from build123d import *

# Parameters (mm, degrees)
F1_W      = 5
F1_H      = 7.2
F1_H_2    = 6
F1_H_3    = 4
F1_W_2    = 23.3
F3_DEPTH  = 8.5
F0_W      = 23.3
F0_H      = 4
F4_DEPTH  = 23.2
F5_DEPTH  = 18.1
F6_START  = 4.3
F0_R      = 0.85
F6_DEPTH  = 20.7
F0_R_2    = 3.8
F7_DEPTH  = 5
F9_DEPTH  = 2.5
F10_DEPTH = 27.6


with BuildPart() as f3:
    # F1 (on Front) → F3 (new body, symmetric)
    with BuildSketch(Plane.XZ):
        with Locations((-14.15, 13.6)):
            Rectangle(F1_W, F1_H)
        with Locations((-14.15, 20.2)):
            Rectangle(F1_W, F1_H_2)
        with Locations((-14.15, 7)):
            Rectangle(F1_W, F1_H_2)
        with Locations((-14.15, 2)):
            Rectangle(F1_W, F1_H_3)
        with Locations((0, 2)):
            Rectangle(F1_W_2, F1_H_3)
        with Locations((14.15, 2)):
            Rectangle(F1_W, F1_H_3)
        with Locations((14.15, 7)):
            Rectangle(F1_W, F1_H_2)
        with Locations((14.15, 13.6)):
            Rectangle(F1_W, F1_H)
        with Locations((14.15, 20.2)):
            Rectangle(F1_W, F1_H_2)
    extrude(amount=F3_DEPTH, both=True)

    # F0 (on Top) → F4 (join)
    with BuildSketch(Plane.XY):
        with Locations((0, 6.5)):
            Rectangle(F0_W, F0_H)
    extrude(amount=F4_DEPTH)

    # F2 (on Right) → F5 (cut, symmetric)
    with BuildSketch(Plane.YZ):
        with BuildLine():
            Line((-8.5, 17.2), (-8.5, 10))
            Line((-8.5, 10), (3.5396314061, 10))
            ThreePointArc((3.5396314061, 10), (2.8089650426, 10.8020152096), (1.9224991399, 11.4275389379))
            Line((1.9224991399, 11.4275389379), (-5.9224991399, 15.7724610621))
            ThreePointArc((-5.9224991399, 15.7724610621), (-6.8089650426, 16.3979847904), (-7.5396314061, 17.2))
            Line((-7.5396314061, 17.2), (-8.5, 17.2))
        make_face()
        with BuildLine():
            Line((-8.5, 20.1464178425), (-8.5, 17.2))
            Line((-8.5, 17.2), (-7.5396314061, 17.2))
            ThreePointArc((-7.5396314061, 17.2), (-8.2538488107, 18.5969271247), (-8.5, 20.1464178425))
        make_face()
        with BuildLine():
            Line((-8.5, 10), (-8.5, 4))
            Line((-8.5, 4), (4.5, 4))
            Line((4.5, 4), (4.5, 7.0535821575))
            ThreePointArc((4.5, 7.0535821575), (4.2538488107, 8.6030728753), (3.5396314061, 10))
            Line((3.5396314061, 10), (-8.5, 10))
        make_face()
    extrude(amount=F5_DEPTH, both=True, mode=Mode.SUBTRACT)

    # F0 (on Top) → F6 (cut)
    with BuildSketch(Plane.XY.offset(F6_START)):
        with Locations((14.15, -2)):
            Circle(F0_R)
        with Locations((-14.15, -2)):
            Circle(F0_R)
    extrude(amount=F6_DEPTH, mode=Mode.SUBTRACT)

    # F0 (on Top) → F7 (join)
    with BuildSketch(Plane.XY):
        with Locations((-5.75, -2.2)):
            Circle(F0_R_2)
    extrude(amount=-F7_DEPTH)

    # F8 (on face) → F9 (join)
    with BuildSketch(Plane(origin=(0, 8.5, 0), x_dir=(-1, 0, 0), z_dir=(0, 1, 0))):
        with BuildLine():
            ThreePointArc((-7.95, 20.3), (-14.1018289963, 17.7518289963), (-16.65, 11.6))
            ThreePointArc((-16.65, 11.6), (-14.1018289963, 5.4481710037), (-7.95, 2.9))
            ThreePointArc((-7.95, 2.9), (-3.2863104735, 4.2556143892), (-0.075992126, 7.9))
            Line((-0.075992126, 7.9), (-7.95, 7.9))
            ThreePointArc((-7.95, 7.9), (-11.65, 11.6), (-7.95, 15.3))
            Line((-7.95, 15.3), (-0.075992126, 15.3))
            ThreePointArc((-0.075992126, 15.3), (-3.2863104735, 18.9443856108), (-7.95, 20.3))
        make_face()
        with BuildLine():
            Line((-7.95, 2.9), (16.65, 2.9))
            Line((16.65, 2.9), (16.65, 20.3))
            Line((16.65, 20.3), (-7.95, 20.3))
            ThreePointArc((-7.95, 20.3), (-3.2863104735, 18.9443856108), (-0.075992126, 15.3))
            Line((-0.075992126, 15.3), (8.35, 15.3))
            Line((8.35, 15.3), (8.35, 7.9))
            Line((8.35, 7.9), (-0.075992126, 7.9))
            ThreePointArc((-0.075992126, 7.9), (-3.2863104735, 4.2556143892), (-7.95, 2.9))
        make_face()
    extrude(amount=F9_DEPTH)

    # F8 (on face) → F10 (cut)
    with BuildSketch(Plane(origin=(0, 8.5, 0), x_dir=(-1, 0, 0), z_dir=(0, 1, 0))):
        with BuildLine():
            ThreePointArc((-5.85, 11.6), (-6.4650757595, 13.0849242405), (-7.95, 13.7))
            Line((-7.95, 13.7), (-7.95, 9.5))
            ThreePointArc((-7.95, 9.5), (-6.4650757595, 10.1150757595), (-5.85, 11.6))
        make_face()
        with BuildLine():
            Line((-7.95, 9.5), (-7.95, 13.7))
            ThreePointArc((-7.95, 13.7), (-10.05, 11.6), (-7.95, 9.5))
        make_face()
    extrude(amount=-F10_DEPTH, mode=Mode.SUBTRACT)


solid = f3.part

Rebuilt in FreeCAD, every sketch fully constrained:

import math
import FreeCAD as App
import Part
import Sketcher

V = App.Vector
Q = App.Units.Quantity


def add_polygon(sketch, points):
    """Adds a closed chain of lines whose ends are joined by coincident constraints."""
    first, n = sketch.GeometryCount, len(points)
    for a, b in zip(points, points[1:] + points[:1]):
        sketch.addGeometry(Part.LineSegment(App.Vector(*a, 0), App.Vector(*b, 0)), False)
    for i in range(n):
        sketch.addConstraint(Sketcher.Constraint("Coincident", first + i, 2, first + (i + 1) % n, 1))

doc = App.newDocument("Part")
body = doc.addObject("PartDesign::Body", "Body")

sketch1 = body.newObject("Sketcher::SketchObject", "Sketch")
sketch1.AttachmentSupport = (doc.getObject("XZ_Plane"), [""])
sketch1.MapMode = "FlatFace"
add_polygon(sketch1, [(-11.65, 23.2), (-16.65, 23.2), (-16.65, 0), (16.65, 0), (16.65, 23.2), (11.65, 23.2), (11.65, 4), (-11.65, 4)])
sketch1.addConstraint([
    Sketcher.Constraint("Horizontal", 0),
    Sketcher.Constraint("Vertical", 1),
    Sketcher.Constraint("Horizontal", 2),
    Sketcher.Constraint("Vertical", 3),
    Sketcher.Constraint("Horizontal", 4),
    Sketcher.Constraint("Vertical", 5),
    Sketcher.Constraint("Horizontal", 6),
    Sketcher.Constraint("Vertical", 7),
    Sketcher.Constraint("Symmetric", 1, 2, 2, 2, -1, 1),
    Sketcher.Constraint("Symmetric", 4, 2, 7, 2, -2),
    Sketcher.Constraint("DistanceX", 0, 2, 0, 1, Q("5 mm")),
    Sketcher.Constraint("DistanceX", 2, 1, 2, 2, Q("33.3 mm")),
    Sketcher.Constraint("DistanceY", 1, 2, 1, 1, Q("23.2 mm")),
    Sketcher.Constraint("DistanceY", 5, 2, 5, 1, Q("19.2 mm")),
])
pad1 = body.newObject("PartDesign::Pad", "Pad")
pad1.Profile = sketch1
pad1.Length = 17
pad1.Midplane = True

sketch2 = body.newObject("Sketcher::SketchObject", "Sketch001")
sketch2.AttachmentSupport = (doc.getObject("XY_Plane"), [""])
sketch2.MapMode = "FlatFace"
add_polygon(sketch2, [(-11.65, 8.5), (-11.65, 4.5), (11.65, 4.5), (11.65, 8.5)])
sketch2.addConstraint([
    Sketcher.Constraint("Vertical", 0),
    Sketcher.Constraint("Horizontal", 1),
    Sketcher.Constraint("Vertical", 2),
    Sketcher.Constraint("Horizontal", 3),
    Sketcher.Constraint("DistanceY", 0, 2, 0, 1, Q("4 mm")),
    Sketcher.Constraint("DistanceX", 1, 1, 1, 2, Q("23.3 mm")),
    Sketcher.Constraint("DistanceY", -1, 1, 0, 2, Q("4.5 mm")),
    Sketcher.Constraint("DistanceX", 0, 2, -1, 1, Q("11.65 mm")),
])
pad2 = body.newObject("PartDesign::Pad", "Pad001")
pad2.Profile = sketch2
pad2.Length = 23.2

sketch3 = body.newObject("Sketcher::SketchObject", "Sketch002")
sketch3.AttachmentSupport = (doc.getObject("YZ_Plane"), [""])
sketch3.MapMode = "FlatFace"
sketch3.addGeometry([
    Part.ArcOfCircle(Part.Circle(V(-0.5, 7.053582, 0), V(0, 0, 1), 5), math.radians(36.106185), math.radians(61.020292)),
    Part.LineSegment(V(1.922499, 11.427539, 0), V(-5.922499, 15.772461, 0)),
    Part.ArcOfCircle(Part.Circle(V(-3.5, 20.146418, 0), V(0, 0, 1), 5), math.radians(-143.893815), math.radians(-118.979708)),
    Part.ArcOfCircle(Part.Circle(V(-3.5, 20.146418, 0), V(0, 0, 1), 5), math.radians(180), math.radians(216.106185)),
    Part.LineSegment(V(-8.5, 20.146418, 0), V(-8.5, 4, 0)),
    Part.LineSegment(V(-8.5, 4, 0), V(4.5, 4, 0)),
    Part.LineSegment(V(4.5, 4, 0), V(4.5, 7.053582, 0)),
    Part.ArcOfCircle(Part.Circle(V(-0.5, 7.053582, 0), V(0, 0, 1), 5), math.radians(0), math.radians(36.106185)),
], False)
sketch3.addConstraint([
    Sketcher.Constraint("Tangent", 0, 2, 1, 1),
    Sketcher.Constraint("Tangent", 1, 2, 2, 2),
    Sketcher.Constraint("Tangent", 2, 1, 3, 2),
    Sketcher.Constraint("Tangent", 3, 1, 4, 1),
    Sketcher.Constraint("Coincident", 4, 2, 5, 1),
    Sketcher.Constraint("Coincident", 5, 2, 6, 1),
    Sketcher.Constraint("Tangent", 6, 2, 7, 1),
    Sketcher.Constraint("Tangent", 7, 2, 0, 1),
    Sketcher.Constraint("Vertical", 4),
    Sketcher.Constraint("Horizontal", 5),
    Sketcher.Constraint("Vertical", 6),
    Sketcher.Constraint("Equal", 0, 2),
    Sketcher.Constraint("Equal", 2, 3),
    Sketcher.Constraint("Equal", 3, 7),
    Sketcher.Constraint("Radius", 0, Q("5 mm")),
    Sketcher.Constraint("DistanceX", 5, 1, 5, 2, Q("13 mm")),
    Sketcher.Constraint("DistanceY", -1, 1, 4, 2, Q("4 mm")),
    Sketcher.Constraint("DistanceY", -1, 1, 7, 2, Q("10 mm")),
    Sketcher.Constraint("DistanceX", 0, 3, -1, 1, Q("0.5 mm")),
    Sketcher.Constraint("DistanceY", -1, 1, 2, 1, Q("17.2 mm")),
    Sketcher.Constraint("DistanceX", 1, 2, 0, 2, Q("7.844998 mm")),
    Sketcher.Constraint("DistanceY", 4, 2, 4, 1, Q("16.146418 mm")),
])
pocket1 = body.newObject("PartDesign::Pocket", "Pocket")
pocket1.Profile = sketch3
pocket1.Length = 36.2
pocket1.Midplane = True

sketch4 = body.newObject("Sketcher::SketchObject", "Sketch003")
sketch4.AttachmentSupport = (doc.getObject("XY_Plane"), [""])
sketch4.MapMode = "FlatFace"
sketch4.AttachmentOffset = App.Placement(V(0, 0, 4.3), App.Rotation())
sketch4.addGeometry([
    Part.Circle(V(14.15, -2, 0), V(0, 0, 1), 0.85),
    Part.Circle(V(-14.15, -2, 0), V(0, 0, 1), 0.85),
], False)
sketch4.addConstraint([
    Sketcher.Constraint("Equal", 0, 1),
    Sketcher.Constraint("Symmetric", 0, 3, 1, 3, -2),
    Sketcher.Constraint("Diameter", 0, Q("1.7 mm")),
    Sketcher.Constraint("DistanceY", 0, 3, -1, 1, Q("2 mm")),
    Sketcher.Constraint("DistanceX", 1, 3, 0, 3, Q("28.3 mm")),
])
pocket2 = body.newObject("PartDesign::Pocket", "Pocket001")
pocket2.Profile = sketch4
pocket2.Length = 20.7
pocket2.Reversed = True

sketch5 = body.newObject("Sketcher::SketchObject", "Sketch004")
sketch5.AttachmentSupport = (doc.getObject("XY_Plane"), [""])
sketch5.MapMode = "FlatFace"
sketch5.addGeometry(Part.Circle(V(-5.75, -2.2, 0), V(0, 0, 1), 3.8), False)
sketch5.addConstraint([
    Sketcher.Constraint("Diameter", 0, Q("7.6 mm")),
    Sketcher.Constraint("DistanceY", 0, 3, -1, 1, Q("2.2 mm")),
    Sketcher.Constraint("DistanceX", 0, 3, -1, 1, Q("5.75 mm")),
])
pad3 = body.newObject("PartDesign::Pad", "Pad002")
pad3.Profile = sketch5
pad3.Length = 5
pad3.Reversed = True

sketch6 = body.newObject("Sketcher::SketchObject", "Sketch005")
sketch6.AttachmentSupport = (doc.getObject("XZ_Plane"), [""])
sketch6.MapMode = "FlatFace"
sketch6.AttachmentOffset = App.Placement(V(0, 0, -8.5), App.Rotation())
sketch6.addGeometry([
    Part.ArcOfCircle(Part.Circle(V(7.95, 11.6, 0), V(0, 0, 1), 8.7), math.radians(0), math.radians(90)),
    Part.ArcOfCircle(Part.Circle(V(7.95, 11.6, 0), V(0, 0, 1), 8.7), math.radians(-90), math.radians(0)),
    Part.LineSegment(V(7.95, 2.9, 0), V(-16.65, 2.9, 0)),
    Part.LineSegment(V(-16.65, 2.9, 0), V(-16.65, 20.3, 0)),
    Part.LineSegment(V(-16.65, 20.3, 0), V(7.95, 20.3, 0)),
    Part.ArcOfCircle(Part.Circle(V(7.95, 11.6, 0), V(0, 0, 1), 3.7), math.radians(-90), math.radians(90)),
    Part.LineSegment(V(7.95, 15.3, 0), V(-8.35, 15.3, 0)),
    Part.LineSegment(V(-8.35, 15.3, 0), V(-8.35, 7.9, 0)),
    Part.LineSegment(V(-8.35, 7.9, 0), V(7.95, 7.9, 0)),
], False)
sketch6.addConstraint([
    Sketcher.Constraint("Tangent", 0, 1, 1, 2),
    Sketcher.Constraint("Tangent", 1, 1, 2, 1),
    Sketcher.Constraint("Coincident", 2, 2, 3, 1),
    Sketcher.Constraint("Coincident", 3, 2, 4, 1),
    Sketcher.Constraint("Tangent", 4, 2, 0, 2),
    Sketcher.Constraint("Tangent", 5, 2, 6, 1),
    Sketcher.Constraint("Coincident", 6, 2, 7, 1),
    Sketcher.Constraint("Coincident", 7, 2, 8, 1),
    Sketcher.Constraint("Tangent", 8, 2, 5, 1),
    Sketcher.Constraint("Horizontal", 2),
    Sketcher.Constraint("Vertical", 3),
    Sketcher.Constraint("Horizontal", 4),
    Sketcher.Constraint("Horizontal", 6),
    Sketcher.Constraint("Vertical", 7),
    Sketcher.Constraint("Horizontal", 8),
    Sketcher.Constraint("Coincident", 5, 3, 0, 3),
    Sketcher.Constraint("Equal", 0, 1),
    Sketcher.Constraint("Horizontal", 5, 3, 0, 1),
    Sketcher.Constraint("Radius", 0, Q("8.7 mm")),
    Sketcher.Constraint("Radius", 5, Q("3.7 mm")),
    Sketcher.Constraint("DistanceX", 2, 2, 2, 1, Q("24.6 mm")),
    Sketcher.Constraint("DistanceX", 6, 2, 6, 1, Q("16.3 mm")),
    Sketcher.Constraint("DistanceY", -1, 1, 0, 3, Q("11.6 mm")),
    Sketcher.Constraint("DistanceX", -1, 1, 0, 3, Q("7.95 mm")),
])
pad4 = body.newObject("PartDesign::Pad", "Pad003")
pad4.Profile = sketch6
pad4.Length = 2.5
pad4.Reversed = True

sketch7 = body.newObject("Sketcher::SketchObject", "Sketch006")
sketch7.AttachmentSupport = (doc.getObject("XZ_Plane"), [""])
sketch7.MapMode = "FlatFace"
sketch7.AttachmentOffset = App.Placement(V(0, 0, -8.5), App.Rotation())
sketch7.addGeometry([
    Part.ArcOfCircle(Part.Circle(V(7.95, 11.6, 0), V(0, 0, 1), 2.1), math.radians(90), math.radians(180)),
    Part.ArcOfCircle(Part.Circle(V(7.95, 11.6, 0), V(0, 0, 1), 2.1), math.radians(-90), math.radians(90)),
    Part.ArcOfCircle(Part.Circle(V(7.95, 11.6, 0), V(0, 0, 1), 2.1), math.radians(180), math.radians(270)),
], False)
sketch7.addConstraint([
    Sketcher.Constraint("Tangent", 0, 1, 1, 2),
    Sketcher.Constraint("Tangent", 1, 1, 2, 2),
    Sketcher.Constraint("Tangent", 2, 1, 0, 2),
    Sketcher.Constraint("Horizontal", 1, 3, 2, 1),
    Sketcher.Constraint("Vertical", 2, 3, 0, 1),
    Sketcher.Constraint("Vertical", 0, 1, 1, 1),
    Sketcher.Constraint("Radius", 0, Q("2.1 mm")),
    Sketcher.Constraint("DistanceY", -1, 1, 0, 3, Q("11.6 mm")),
    Sketcher.Constraint("DistanceX", -1, 1, 0, 3, Q("7.95 mm")),
])
pocket3 = body.newObject("PartDesign::Pocket", "Pocket002")
pocket3.Profile = sketch7
pocket3.Length = 27.6
pocket3.Reversed = True

doc.recompute()
